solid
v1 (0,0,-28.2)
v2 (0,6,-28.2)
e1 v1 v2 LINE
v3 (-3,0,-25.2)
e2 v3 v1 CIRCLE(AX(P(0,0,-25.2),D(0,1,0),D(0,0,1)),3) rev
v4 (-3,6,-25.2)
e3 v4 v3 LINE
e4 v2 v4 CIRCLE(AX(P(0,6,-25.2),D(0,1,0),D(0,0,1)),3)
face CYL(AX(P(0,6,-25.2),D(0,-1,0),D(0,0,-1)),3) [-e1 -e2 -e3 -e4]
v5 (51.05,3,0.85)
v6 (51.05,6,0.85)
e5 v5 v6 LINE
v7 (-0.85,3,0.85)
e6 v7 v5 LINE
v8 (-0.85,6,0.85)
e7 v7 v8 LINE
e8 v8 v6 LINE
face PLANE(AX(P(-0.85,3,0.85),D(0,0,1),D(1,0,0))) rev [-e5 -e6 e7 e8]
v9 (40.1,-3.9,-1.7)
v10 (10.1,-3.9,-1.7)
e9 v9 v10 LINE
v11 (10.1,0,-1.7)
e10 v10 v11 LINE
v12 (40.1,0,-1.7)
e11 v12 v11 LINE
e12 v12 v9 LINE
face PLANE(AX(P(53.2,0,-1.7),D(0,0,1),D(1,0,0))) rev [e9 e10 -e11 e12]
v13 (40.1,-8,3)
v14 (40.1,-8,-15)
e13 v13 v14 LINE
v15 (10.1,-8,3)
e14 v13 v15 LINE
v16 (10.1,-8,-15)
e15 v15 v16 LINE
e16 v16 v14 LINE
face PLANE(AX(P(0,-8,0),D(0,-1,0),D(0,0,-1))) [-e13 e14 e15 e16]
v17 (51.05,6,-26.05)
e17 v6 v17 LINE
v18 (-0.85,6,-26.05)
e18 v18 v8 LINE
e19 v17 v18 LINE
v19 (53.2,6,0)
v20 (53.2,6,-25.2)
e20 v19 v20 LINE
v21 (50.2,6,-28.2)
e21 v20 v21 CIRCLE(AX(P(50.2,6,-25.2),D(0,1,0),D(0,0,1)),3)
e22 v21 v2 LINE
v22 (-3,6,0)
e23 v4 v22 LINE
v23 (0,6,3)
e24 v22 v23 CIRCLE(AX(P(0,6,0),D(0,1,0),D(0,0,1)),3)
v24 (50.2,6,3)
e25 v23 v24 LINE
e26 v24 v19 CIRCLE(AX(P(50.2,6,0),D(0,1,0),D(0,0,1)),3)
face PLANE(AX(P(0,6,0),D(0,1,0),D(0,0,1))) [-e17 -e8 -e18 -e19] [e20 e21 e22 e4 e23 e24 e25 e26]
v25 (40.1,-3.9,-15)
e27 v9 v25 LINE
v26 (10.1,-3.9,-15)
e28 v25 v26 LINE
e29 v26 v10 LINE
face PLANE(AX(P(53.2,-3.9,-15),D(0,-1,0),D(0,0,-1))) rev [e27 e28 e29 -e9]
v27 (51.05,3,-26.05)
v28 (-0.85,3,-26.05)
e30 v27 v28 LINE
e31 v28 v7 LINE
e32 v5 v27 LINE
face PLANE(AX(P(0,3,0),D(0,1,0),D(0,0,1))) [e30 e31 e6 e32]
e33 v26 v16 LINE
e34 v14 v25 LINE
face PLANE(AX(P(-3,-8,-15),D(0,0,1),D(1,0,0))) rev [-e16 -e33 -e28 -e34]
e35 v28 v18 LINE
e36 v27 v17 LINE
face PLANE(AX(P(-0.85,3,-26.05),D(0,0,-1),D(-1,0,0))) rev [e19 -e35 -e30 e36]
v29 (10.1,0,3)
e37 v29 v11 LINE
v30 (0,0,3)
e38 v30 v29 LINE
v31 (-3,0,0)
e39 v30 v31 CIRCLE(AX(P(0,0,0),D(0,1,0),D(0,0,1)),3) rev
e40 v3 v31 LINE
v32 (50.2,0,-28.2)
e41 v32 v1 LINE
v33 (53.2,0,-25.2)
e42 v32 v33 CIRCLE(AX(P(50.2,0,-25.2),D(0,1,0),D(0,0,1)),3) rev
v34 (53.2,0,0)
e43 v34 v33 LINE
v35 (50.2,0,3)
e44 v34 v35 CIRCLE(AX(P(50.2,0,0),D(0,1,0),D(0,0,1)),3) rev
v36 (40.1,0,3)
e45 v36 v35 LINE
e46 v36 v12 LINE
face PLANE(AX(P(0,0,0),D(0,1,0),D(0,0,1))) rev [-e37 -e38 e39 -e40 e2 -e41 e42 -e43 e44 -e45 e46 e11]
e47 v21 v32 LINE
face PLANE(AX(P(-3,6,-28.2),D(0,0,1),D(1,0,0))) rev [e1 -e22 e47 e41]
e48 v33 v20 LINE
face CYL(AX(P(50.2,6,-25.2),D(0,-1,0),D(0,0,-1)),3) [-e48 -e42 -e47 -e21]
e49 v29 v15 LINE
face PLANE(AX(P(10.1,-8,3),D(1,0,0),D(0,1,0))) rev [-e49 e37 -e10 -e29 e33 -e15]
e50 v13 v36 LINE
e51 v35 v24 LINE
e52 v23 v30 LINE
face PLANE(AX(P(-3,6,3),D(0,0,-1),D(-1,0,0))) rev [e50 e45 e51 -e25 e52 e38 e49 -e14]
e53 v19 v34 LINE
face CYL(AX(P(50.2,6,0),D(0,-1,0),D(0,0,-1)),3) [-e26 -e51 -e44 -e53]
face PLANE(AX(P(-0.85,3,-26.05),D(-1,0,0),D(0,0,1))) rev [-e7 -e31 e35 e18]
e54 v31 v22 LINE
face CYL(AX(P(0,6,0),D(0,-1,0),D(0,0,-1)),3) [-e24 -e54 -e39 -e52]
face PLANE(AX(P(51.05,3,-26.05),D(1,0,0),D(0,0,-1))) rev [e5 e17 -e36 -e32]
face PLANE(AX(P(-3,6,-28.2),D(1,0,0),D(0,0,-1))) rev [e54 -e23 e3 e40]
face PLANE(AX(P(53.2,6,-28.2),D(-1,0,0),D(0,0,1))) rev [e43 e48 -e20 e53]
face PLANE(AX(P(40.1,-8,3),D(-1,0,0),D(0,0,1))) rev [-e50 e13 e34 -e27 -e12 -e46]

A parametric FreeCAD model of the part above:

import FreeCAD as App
import Part
import Sketcher

V = App.Vector
Q = App.Units.Quantity


def edges_at(feature, points):
    """Names of the edges that pass closest to the given points."""
    edges = feature.Shape.Edges
    near = lambda p: min(range(len(edges)), key=lambda i: edges[i].distToShape(Part.Vertex(*p))[0])
    return sorted({f"Edge{near(p) + 1}" for p in points})


def add_polygon(sketch, points):
    """Adds a closed chain of lines whose ends are joined by coincident constraints."""
    first, n = sketch.GeometryCount, len(points)
    for a, b in zip(points, points[1:] + points[:1]):
        sketch.addGeometry(Part.LineSegment(App.Vector(*a, 0), App.Vector(*b, 0)), False)
    for i in range(n):
        sketch.addConstraint(Sketcher.Constraint("Coincident", first + i, 2, first + (i + 1) % n, 1))

doc = App.newDocument("Part")
body = doc.addObject("PartDesign::Body", "Body")

sketch1 = body.newObject("Sketcher::SketchObject", "Sketch")
sketch1.AttachmentSupport = (doc.getObject("XZ_Plane"), [""])
sketch1.MapMode = "FlatFace"
add_polygon(sketch1, [(-3, -28), (-3, 3), (53, 3), (53, -28)])
sketch1.addConstraint([
    Sketcher.Constraint("Vertical", 0),
    Sketcher.Constraint("Horizontal", 1),
    Sketcher.Constraint("Vertical", 2),
    Sketcher.Constraint("Horizontal", 3),
    Sketcher.Constraint("DistanceX", 1, 1, 1, 2, Q("56.2 mm")),
    Sketcher.Constraint("DistanceY", 0, 1, 0, 2, Q("31.2 mm")),
    Sketcher.Constraint("DistanceX", 0, 2, -1, 1, Q("3 mm")),
    Sketcher.Constraint("DistanceY", -1, 1, 0, 2, Q("3 mm")),
])
pad1 = body.newObject("PartDesign::Pad", "Pad")
pad1.Profile = sketch1
pad1.Length = 6
pad1.Reversed = True

sketch2 = body.newObject("Sketcher::SketchObject", "Sketch001")
sketch2.AttachmentSupport = (doc.getObject("XZ_Plane"), [""])
sketch2.MapMode = "FlatFace"
sketch2.AttachmentOffset = App.Placement(V(0, 0, -6), App.Rotation())
add_polygon(sketch2, [(-1, -26), (-1, 1), (51, 1), (51, -26)])
sketch2.addConstraint([
    Sketcher.Constraint("Vertical", 0),
    Sketcher.Constraint("Horizontal", 1),
    Sketcher.Constraint("Vertical", 2),
    Sketcher.Constraint("Horizontal", 3),
    Sketcher.Constraint("DistanceX", 1, 1, 1, 2, Q("51.9 mm")),
    Sketcher.Constraint("DistanceY", 0, 1, 0, 2, Q("26.9 mm")),
    Sketcher.Constraint("DistanceX", 0, 2, -1, 1, Q("0.85 mm")),
    Sketcher.Constraint("DistanceY", -1, 1, 0, 2, Q("0.85 mm")),
])
pocket1 = body.newObject("PartDesign::Pocket", "Pocket")
pocket1.Profile = sketch2
pocket1.Length = 3
pocket1.Reversed = True

sketch3 = body.newObject("Sketcher::SketchObject", "Sketch002")
sketch3.AttachmentSupport = (doc.getObject("XZ_Plane"), [""])
sketch3.MapMode = "FlatFace"
add_polygon(sketch3, [(-3, 3), (-3, -15), (53, -15), (53, 3)])
sketch3.addConstraint([
    Sketcher.Constraint("Vertical", 0),
    Sketcher.Constraint("Horizontal", 1),
    Sketcher.Constraint("Vertical", 2),
    Sketcher.Constraint("Horizontal", 3),
    Sketcher.Constraint("DistanceY", 0, 2, 0, 1, Q("18 mm")),
    Sketcher.Constraint("DistanceX", 1, 1, 1, 2, Q("56.2 mm")),
    Sketcher.Constraint("DistanceX", 0, 2, -1, 1, Q("3 mm")),
    Sketcher.Constraint("DistanceY", 0, 2, -1, 1, Q("15 mm")),
])
pad2 = body.newObject("PartDesign::Pad", "Pad001")
pad2.Profile = sketch3
pad2.Length = 8

sketch4 = body.newObject("Sketcher::SketchObject", "Sketch003")
sketch4.AttachmentSupport = (doc.getObject("YZ_Plane"), [""])
sketch4.MapMode = "FlatFace"
sketch4.AttachmentOffset = App.Placement(V(0, 0, -3), App.Rotation())
add_polygon(sketch4, [(0, -15), (-3.9, -15), (-3.9, -1.7), (0, -1.7)])
sketch4.addConstraint([
    Sketcher.Constraint("Horizontal", 0),
    Sketcher.Constraint("Vertical", 1),
    Sketcher.Constraint("Horizontal", 2),
    Sketcher.Constraint("Vertical", 3),
    Sketcher.Constraint("PointOnObject", 2, 2, -2),
    Sketcher.Constraint("DistanceX", 0, 2, 0, 1, Q("3.9 mm")),
    Sketcher.Constraint("DistanceY", 1, 1, 1, 2, Q("13.3 mm")),
    Sketcher.Constraint("DistanceY", 0, 2, -1, 1, Q("15 mm")),
])
pocket2 = body.newObject("PartDesign::Pocket", "Pocket001")
pocket2.Profile = sketch4
pocket2.Type = "ThroughAll"
pocket2.Reversed = True

sketch5 = body.newObject("Sketcher::SketchObject", "Sketch004")
sketch5.AttachmentSupport = (doc.getObject("XY_Plane"), [""])
sketch5.MapMode = "FlatFace"
sketch5.AttachmentOffset = App.Placement(V(0, 0, -15), App.Rotation())
add_polygon(sketch5, [(53, 0), (53, -8), (40, -8), (40, 0)])
add_polygon(sketch5, [(10, 0), (10, -8), (-3, -8), (-3, 0)])
sketch5.addConstraint([
    Sketcher.Constraint("Vertical", 0),
    Sketcher.Constraint("Horizontal", 1),
    Sketcher.Constraint("Vertical", 2),
    Sketcher.Constraint("Horizontal", 3),
    Sketcher.Constraint("Vertical", 4),
    Sketcher.Constraint("Horizontal", 5),
    Sketcher.Constraint("Vertical", 6),
    Sketcher.Constraint("Horizontal", 7),
    Sketcher.Constraint("PointOnObject", 2, 2, -1),
    Sketcher.Constraint("PointOnObject", 6, 2, -1),
    Sketcher.Constraint("Horizontal", 1, 2, 4, 2),
    Sketcher.Constraint("Equal", 3, 5),
    Sketcher.Constraint("DistanceY", 0, 2, 0, 1, Q("8 mm")),
    Sketcher.Constraint("DistanceX", 1, 2, 1, 1, Q("13.1 mm")),
    Sketcher.Constraint("DistanceX", 5, 2, -1, 1, Q("3 mm")),
    Sketcher.Constraint("DistanceX", 4, 2, 1, 2, Q("30 mm")),
])
pocket3 = body.newObject("PartDesign::Pocket", "Pocket002")
pocket3.Profile = sketch5
pocket3.Type = "ThroughAll"
pocket3.Reversed = True
doc.recompute()

fillet = body.newObject("PartDesign::Fillet", "Fillet")
fillet.Base = (pocket3, edges_at(pocket3, [
    (-3, 3, -28.2),
    (53.2, 3, -28.2),
    (53.2, 3, 3),
    (-3, 3, 3),
]))
fillet.Radius = 3

doc.recompute()
